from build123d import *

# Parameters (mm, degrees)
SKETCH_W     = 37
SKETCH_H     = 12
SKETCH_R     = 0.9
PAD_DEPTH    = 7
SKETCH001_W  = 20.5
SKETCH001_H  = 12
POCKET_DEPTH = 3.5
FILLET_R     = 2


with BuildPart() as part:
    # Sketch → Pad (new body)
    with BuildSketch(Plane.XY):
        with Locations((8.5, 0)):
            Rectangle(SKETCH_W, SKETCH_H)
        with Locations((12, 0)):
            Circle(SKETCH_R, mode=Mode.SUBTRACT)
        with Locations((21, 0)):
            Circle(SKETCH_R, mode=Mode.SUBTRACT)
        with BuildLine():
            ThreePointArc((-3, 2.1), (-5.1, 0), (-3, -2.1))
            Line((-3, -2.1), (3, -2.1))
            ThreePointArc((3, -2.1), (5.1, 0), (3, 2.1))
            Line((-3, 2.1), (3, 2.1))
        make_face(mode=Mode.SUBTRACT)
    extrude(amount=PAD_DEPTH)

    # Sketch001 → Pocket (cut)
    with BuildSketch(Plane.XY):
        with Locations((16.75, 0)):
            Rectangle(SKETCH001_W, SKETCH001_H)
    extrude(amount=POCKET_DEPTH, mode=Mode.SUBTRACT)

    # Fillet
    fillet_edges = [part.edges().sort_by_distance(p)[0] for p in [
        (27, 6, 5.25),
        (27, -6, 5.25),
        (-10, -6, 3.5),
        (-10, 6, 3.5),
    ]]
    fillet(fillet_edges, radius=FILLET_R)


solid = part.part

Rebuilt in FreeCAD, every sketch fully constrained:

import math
import FreeCAD as App
import Part
import Sketcher
from FreeCAD import Vector
Q = App.Units.Quantity


def edges_at(feature, points):
    """Names of the edges that pass closest to the given points."""
    edges = feature.Shape.Edges
    near = lambda p: min(range(len(edges)), key=lambda i: edges[i].distToShape(Part.Vertex(*p))[0])
    return sorted({f"Edge{near(p) + 1}" for p in points})

doc = App.newDocument("Part")
body = doc.addObject("PartDesign::Body", "Body")

sketch1 = body.newObject("Sketcher::SketchObject", "Sketch")
sketch1.AttachmentSupport = (doc.getObject("XY_Plane"), [""])
sketch1.MapMode = "FlatFace"
sketch1.addGeometry(Part.LineSegment(Vector(-10, 6, 0), Vector(-10, -6, 0)), False)
sketch1.addGeometry(Part.LineSegment(Vector(-10, -6, 0), Vector(27, -6, 0)), False)
sketch1.addGeometry(Part.LineSegment(Vector(27, -6, 0), Vector(27, 6, 0)), False)
sketch1.addGeometry(Part.LineSegment(Vector(27, 6, 0), Vector(-10, 6, 0)), False)
sketch1.addGeometry(Part.ArcOfCircle(Part.Circle(Vector(-3, 0, 0), Vector(0, 0, 1), 2.1), math.radians(90), math.radians(270)), False)
sketch1.addGeometry(Part.LineSegment(Vector(-3, 2.1, 0), Vector(3, 2.1, 0)), False)
sketch1.addGeometry(Part.ArcOfCircle(Part.Circle(Vector(3, 0, 0), Vector(0, 0, 1), 2.1), math.radians(-90), math.radians(90)), False)
sketch1.addGeometry(Part.LineSegment(Vector(3, -2.1, 0), Vector(-3, -2.1, 0)), False)
sketch1.addGeometry(Part.Circle(Vector(12, 0, 0), Vector(0, 0, 1), 0.9), False)
sketch1.addGeometry(Part.Circle(Vector(21, 0, 0), Vector(0, 0, 1), 0.9), False)
sketch1.addConstraint(Sketcher.Constraint("Coincident", 0, 2, 1, 1))
sketch1.addConstraint(Sketcher.Constraint("Coincident", 1, 2, 2, 1))
sketch1.addConstraint(Sketcher.Constraint("Coincident", 2, 2, 3, 1))
sketch1.addConstraint(Sketcher.Constraint("Coincident", 3, 2, 0, 1))
sketch1.addConstraint(Sketcher.Constraint("Tangent", 4, 1, 5, 1))
sketch1.addConstraint(Sketcher.Constraint("Tangent", 5, 2, 6, 2))
sketch1.addConstraint(Sketcher.Constraint("Tangent", 6, 1, 7, 1))
sketch1.addConstraint(Sketcher.Constraint("Tangent", 7, 2, 4, 2))
sketch1.addConstraint(Sketcher.Constraint("Vertical", 0))
sketch1.addConstraint(Sketcher.Constraint("Horizontal", 1))
sketch1.addConstraint(Sketcher.Constraint("Vertical", 2))
sketch1.addConstraint(Sketcher.Constraint("Horizontal", 3))
sketch1.addConstraint(Sketcher.Constraint("Horizontal", 5))
sketch1.addConstraint(Sketcher.Constraint("Horizontal", 7))
sketch1.addConstraint(Sketcher.Constraint("Equal", 8, 9))
sketch1.addConstraint(Sketcher.Constraint("Symmetric", 4, 3, 6, 3, -1, 1))
sketch1.addConstraint(Sketcher.Constraint("PointOnObject", 8, 3, -1))
sketch1.addConstraint(Sketcher.Constraint("PointOnObject", 9, 3, -1))
sketch1.addConstraint(Sketcher.Constraint("Diameter", 8, Q("1.8 mm")))
sketch1.addConstraint(Sketcher.Constraint("Radius", 4, Q("2.1 mm")))
sketch1.addConstraint(Sketcher.Constraint("DistanceX", 1, 1, 1, 2, Q("37 mm")))
sketch1.addConstraint(Sketcher.Constraint("DistanceX", 5, 1, 5, 2, Q("6 mm")))
sketch1.addConstraint(Sketcher.Constraint("DistanceY", 0, 2, 0, 1, Q("12 mm")))
sketch1.addConstraint(Sketcher.Constraint("DistanceX", -1, 1, 8, 3, Q("12 mm")))
sketch1.addConstraint(Sketcher.Constraint("DistanceX", -1, 1, 9, 3, Q("21 mm")))
sketch1.addConstraint(Sketcher.Constraint("DistanceX", 0, 2, -1, 1, Q("10 mm")))
sketch1.addConstraint(Sketcher.Constraint("DistanceY", 0, 2, -1, 1, Q("6 mm")))
pad1 = body.newObject("PartDesign::Pad", "Pad")
pad1.Profile = sketch1
pad1.Length = 7

sketch2 = body.newObject("Sketcher::SketchObject", "Sketch001")
sketch2.AttachmentSupport = (doc.getObject("XY_Plane"), [""])
sketch2.MapMode = "FlatFace"
sketch2.addGeometry(Part.LineSegment(Vector(6, 6, 0), Vector(6, -6, 0)), False)
sketch2.addGeometry(Part.LineSegment(Vector(6, -6, 0), Vector(27, -6, 0)), False)
sketch2.addGeometry(Part.LineSegment(Vector(27, -6, 0), Vector(27, 6, 0)), False)
sketch2.addGeometry(Part.LineSegment(Vector(27, 6, 0), Vector(6, 6, 0)), False)
sketch2.addConstraint(Sketcher.Constraint("Coincident", 0, 2, 1, 1))
sketch2.addConstraint(Sketcher.Constraint("Coincident", 1, 2, 2, 1))
sketch2.addConstraint(Sketcher.Constraint("Coincident", 2, 2, 3, 1))
sketch2.addConstraint(Sketcher.Constraint("Coincident", 3, 2, 0, 1))
sketch2.addConstraint(Sketcher.Constraint("Vertical", 0))
sketch2.addConstraint(Sketcher.Constraint("Horizontal", 1))
sketch2.addConstraint(Sketcher.Constraint("Vertical", 2))
sketch2.addConstraint(Sketcher.Constraint("Horizontal", 3))
sketch2.addConstraint(Sketcher.Constraint("DistanceY", 0, 2, 0, 1, Q("12 mm")))
sketch2.addConstraint(Sketcher.Constraint("DistanceX", 1, 1, 1, 2, Q("20.5 mm")))
sketch2.addConstraint(Sketcher.Constraint("DistanceY", 0, 2, -1, 1, Q("6 mm")))
sketch2.addConstraint(Sketcher.Constraint("DistanceX", -1, 1, 1, 2, Q("27 mm")))
pocket1 = body.newObject("PartDesign::Pocket", "Pocket")
pocket1.Profile = sketch2
pocket1.Length = 3.5
pocket1.Reversed = True
doc.recompute()

fillet = body.newObject("PartDesign::Fillet", "Fillet")
fillet.Base = (pocket1, edges_at(pocket1, [
    (27, 6, 5.25),
    (27, -6, 5.25),
    (-10, -6, 3.5),
    (-10, 6, 3.5),
]))
fillet.Radius = 2

doc.recompute()
